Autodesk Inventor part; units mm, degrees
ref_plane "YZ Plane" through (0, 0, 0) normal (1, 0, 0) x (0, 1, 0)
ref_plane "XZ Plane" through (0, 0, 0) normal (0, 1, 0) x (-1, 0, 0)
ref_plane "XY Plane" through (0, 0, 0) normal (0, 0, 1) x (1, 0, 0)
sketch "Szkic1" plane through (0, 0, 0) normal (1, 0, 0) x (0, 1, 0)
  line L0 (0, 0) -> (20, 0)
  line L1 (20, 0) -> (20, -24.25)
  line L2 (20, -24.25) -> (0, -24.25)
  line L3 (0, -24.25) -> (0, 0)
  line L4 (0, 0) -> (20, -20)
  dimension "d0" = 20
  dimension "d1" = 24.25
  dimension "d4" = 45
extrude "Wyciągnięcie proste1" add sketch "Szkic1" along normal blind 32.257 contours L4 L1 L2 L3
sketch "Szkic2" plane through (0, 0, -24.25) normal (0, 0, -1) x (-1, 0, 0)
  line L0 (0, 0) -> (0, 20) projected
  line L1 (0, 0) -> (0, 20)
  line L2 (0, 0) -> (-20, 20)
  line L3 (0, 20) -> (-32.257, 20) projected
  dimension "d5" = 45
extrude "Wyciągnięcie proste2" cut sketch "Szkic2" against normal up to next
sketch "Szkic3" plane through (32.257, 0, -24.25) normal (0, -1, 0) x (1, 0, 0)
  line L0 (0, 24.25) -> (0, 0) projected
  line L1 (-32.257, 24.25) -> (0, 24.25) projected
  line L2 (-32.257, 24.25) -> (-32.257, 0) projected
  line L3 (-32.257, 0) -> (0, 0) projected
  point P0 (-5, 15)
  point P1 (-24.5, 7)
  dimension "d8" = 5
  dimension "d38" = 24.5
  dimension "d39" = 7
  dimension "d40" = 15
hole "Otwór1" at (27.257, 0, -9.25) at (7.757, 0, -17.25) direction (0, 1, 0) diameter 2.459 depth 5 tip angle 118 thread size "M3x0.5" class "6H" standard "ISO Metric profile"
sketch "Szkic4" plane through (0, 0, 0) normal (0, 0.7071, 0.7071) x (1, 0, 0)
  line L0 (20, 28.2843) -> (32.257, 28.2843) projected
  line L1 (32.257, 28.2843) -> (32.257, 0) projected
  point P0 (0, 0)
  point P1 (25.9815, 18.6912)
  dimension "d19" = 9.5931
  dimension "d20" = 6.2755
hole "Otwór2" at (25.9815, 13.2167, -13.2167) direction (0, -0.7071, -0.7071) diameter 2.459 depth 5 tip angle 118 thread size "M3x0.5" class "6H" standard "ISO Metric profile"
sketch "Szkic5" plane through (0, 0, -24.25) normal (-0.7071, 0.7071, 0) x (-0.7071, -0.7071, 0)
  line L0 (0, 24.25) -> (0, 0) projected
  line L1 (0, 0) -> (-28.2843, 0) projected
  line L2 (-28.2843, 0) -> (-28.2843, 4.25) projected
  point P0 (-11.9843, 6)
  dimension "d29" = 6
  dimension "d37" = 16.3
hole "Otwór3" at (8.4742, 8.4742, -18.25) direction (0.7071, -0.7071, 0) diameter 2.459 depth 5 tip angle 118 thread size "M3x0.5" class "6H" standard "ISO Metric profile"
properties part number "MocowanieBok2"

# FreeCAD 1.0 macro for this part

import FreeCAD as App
import Part
import Sketcher

V = App.Vector
Q = App.Units.Quantity

doc = App.newDocument("Part")
body = doc.addObject("PartDesign::Body", "Body")

sketch1 = body.newObject("Sketcher::SketchObject", "Sketch")
sketch1.AttachmentSupport = (doc.getObject("YZ_Plane"), [""])
sketch1.MapMode = "FlatFace"
sketch1.addGeometry(Part.LineSegment(V(20, -20, 0), V(0, 0, 0)), False)
sketch1.addGeometry(Part.LineSegment(V(0, 0, 0), V(0, -24.2, 0)), False)
sketch1.addGeometry(Part.LineSegment(V(0, -24.2, 0), V(20, -24.2, 0)), False)
sketch1.addGeometry(Part.LineSegment(V(20, -24.2, 0), V(20, -20, 0)), False)
sketch1.addConstraint(Sketcher.Constraint("Coincident", 0, 2, 1, 1))
sketch1.addConstraint(Sketcher.Constraint("Coincident", 1, 2, 2, 1))
sketch1.addConstraint(Sketcher.Constraint("Coincident", 2, 2, 3, 1))
sketch1.addConstraint(Sketcher.Constraint("Coincident", 3, 2, 0, 1))
sketch1.addConstraint(Sketcher.Constraint("Vertical", 1))
sketch1.addConstraint(Sketcher.Constraint("Horizontal", 2))
sketch1.addConstraint(Sketcher.Constraint("Vertical", 3))
sketch1.addConstraint(Sketcher.Constraint("Coincident", 0, 2, -1, 1))
sketch1.addConstraint(Sketcher.Constraint("DistanceX", 2, 1, 2, 2, Q("20 mm")))
sketch1.addConstraint(Sketcher.Constraint("DistanceY", 3, 2, -1, 1, Q("20 mm")))
sketch1.addConstraint(Sketcher.Constraint("DistanceY", 1, 2, 1, 1, Q("24.25 mm")))
pad1 = body.newObject("PartDesign::Pad", "Pad")
pad1.Profile = sketch1
pad1.Length = 32.257

sketch2 = body.newObject("Sketcher::SketchObject", "Sketch001")
sketch2.AttachmentSupport = (doc.getObject("XY_Plane"), [""])
sketch2.MapMode = "FlatFace"
sketch2.AttachmentOffset = App.Placement(V(0, 0, -24.25), App.Rotation())
sketch2.addGeometry(Part.LineSegment(V(20, 20, 0), V(0, 0, 0)), False)
sketch2.addGeometry(Part.LineSegment(V(0, 0, 0), V(0, 20, 0)), False)
sketch2.addGeometry(Part.LineSegment(V(0, 20, 0), V(20, 20, 0)), False)
sketch2.addConstraint(Sketcher.Constraint("Coincident", 0, 2, 1, 1))
sketch2.addConstraint(Sketcher.Constraint("Coincident", 1, 2, 2, 1))
sketch2.addConstraint(Sketcher.Constraint("Coincident", 2, 2, 0, 1))
sketch2.addConstraint(Sketcher.Constraint("Vertical", 1))
sketch2.addConstraint(Sketcher.Constraint("Horizontal", 2))
sketch2.addConstraint(Sketcher.Constraint("Coincident", 0, 2, -1, 1))
sketch2.addConstraint(Sketcher.Constraint("Equal", 2, 1))
sketch2.addConstraint(Sketcher.Constraint("DistanceX", 2, 1, 2, 2, Q("20 mm")))
pocket1 = body.newObject("PartDesign::Pocket", "Pocket")
pocket1.Profile = sketch2
pocket1.Type = "UpToFirst"
pocket1.Reversed = True

sketch3 = body.newObject("Sketcher::SketchObject", "Sketch002")
sketch3.AttachmentSupport = (doc.getObject("XZ_Plane"), [""])
sketch3.MapMode = "FlatFace"
sketch3.addGeometry(Part.Circle(V(27.3, -9.2, 0), V(0, 0, 1), 1.2), False)
sketch3.addGeometry(Part.Circle(V(7.8, -17.2, 0), V(0, 0, 1), 1.2), False)
sketch3.addConstraint(Sketcher.Constraint("Equal", 0, 1))
sketch3.addConstraint(Sketcher.Constraint("Diameter", 0, Q("2.459 mm")))
sketch3.addConstraint(Sketcher.Constraint("DistanceY", 1, 3, 0, 3, Q("8 mm")))
sketch3.addConstraint(Sketcher.Constraint("DistanceX", 1, 3, 0, 3, Q("19.5 mm")))
sketch3.addConstraint(Sketcher.Constraint("DistanceY", 0, 3, -1, 1, Q("9.25 mm")))
sketch3.addConstraint(Sketcher.Constraint("DistanceX", -1, 1, 0, 3, Q("27.257 mm")))
doc.recompute()
hole = body.newObject("PartDesign::Hole", "Hole")
hole.Profile = sketch3
hole.ThreadType = "None"
hole.Diameter = 2.459
hole.DepthType = "Dimension"
hole.Depth = 5
hole.DrillPoint = "Angled"
hole.DrillPointAngle = 118

sketch4 = body.newObject("Sketcher::SketchObject", "Sketch003")
sketch4.Placement = App.Placement(V(0, 0, 0), App.Rotation(V(0, -0.707106781, 0.707106781), V(0.999999999, 0, 0), V(0, 0.707106781, 0.707106781), "ZXY"))
sketch4.addGeometry(Part.Circle(V(-18.7, 26, 0), V(0, 0, 1), 1.2), False)
sketch4.addConstraint(Sketcher.Constraint("Diameter", 0, Q("2.459 mm")))
sketch4.addConstraint(Sketcher.Constraint("DistanceX", 0, 3, -1, 1, Q("18.6912 mm")))
sketch4.addConstraint(Sketcher.Constraint("DistanceY", -1, 1, 0, 3, Q("25.9815 mm")))
doc.recompute()
hole2 = body.newObject("PartDesign::Hole", "Hole001")
hole2.Profile = sketch4
hole2.ThreadType = "None"
hole2.Diameter = 2.459
hole2.DepthType = "Dimension"
hole2.Depth = 5
hole2.DrillPoint = "Angled"
hole2.DrillPointAngle = 118

sketch5 = body.newObject("Sketcher::SketchObject", "Sketch004")
sketch5.Placement = App.Placement(V(0, 0, 0), App.Rotation(V(-0.707106781, -0.707106781, 0), V(0, 0, 0.999999999), V(-0.707106781, 0.707106781, 0), "ZXY"))
sketch5.addGeometry(Part.Circle(V(-12, -18.2, 0), V(0, 0, 1), 1.2), False)
sketch5.addConstraint(Sketcher.Constraint("Diameter", 0, Q("2.459 mm")))
sketch5.addConstraint(Sketcher.Constraint("DistanceY", 0, 3, -1, 1, Q("18.25 mm")))
sketch5.addConstraint(Sketcher.Constraint("DistanceX", 0, 3, -1, 1, Q("11.9843 mm")))
doc.recompute()
hole3 = body.newObject("PartDesign::Hole", "Hole002")
hole3.Profile = sketch5
hole3.ThreadType = "None"
hole3.Diameter = 2.459
hole3.DepthType = "Dimension"
hole3.Depth = 5
hole3.DrillPoint = "Angled"
hole3.DrillPointAngle = 118

doc.recompute()
